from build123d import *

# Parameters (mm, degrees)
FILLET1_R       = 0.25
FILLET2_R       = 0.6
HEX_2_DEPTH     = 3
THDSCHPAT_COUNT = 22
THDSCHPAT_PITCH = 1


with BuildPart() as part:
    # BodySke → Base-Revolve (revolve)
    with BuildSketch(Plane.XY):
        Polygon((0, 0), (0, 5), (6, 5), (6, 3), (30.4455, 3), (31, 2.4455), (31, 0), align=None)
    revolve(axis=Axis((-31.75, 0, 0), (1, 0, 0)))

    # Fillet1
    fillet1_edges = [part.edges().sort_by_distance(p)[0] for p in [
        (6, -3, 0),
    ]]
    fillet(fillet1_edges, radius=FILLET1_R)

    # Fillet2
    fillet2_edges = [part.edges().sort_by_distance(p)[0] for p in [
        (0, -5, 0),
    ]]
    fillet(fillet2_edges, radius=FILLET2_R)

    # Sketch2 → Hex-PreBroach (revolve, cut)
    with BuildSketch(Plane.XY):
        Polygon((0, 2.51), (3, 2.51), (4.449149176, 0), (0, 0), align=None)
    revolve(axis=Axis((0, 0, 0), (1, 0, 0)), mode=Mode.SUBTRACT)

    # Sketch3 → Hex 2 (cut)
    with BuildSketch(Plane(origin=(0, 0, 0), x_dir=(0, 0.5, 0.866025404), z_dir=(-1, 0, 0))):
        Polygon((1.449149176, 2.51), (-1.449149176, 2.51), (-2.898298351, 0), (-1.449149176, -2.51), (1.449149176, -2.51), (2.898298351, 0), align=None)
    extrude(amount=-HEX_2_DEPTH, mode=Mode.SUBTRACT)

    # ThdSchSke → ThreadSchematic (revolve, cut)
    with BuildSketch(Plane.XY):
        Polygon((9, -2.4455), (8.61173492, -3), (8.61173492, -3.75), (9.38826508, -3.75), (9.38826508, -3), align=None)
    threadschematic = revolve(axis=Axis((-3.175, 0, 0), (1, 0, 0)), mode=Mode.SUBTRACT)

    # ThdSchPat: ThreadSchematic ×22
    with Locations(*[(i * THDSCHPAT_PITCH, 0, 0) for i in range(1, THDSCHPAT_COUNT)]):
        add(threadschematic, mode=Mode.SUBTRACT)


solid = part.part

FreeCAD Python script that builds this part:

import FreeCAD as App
import Part
import Sketcher

V = App.Vector
Q = App.Units.Quantity


def edges_at(feature, points):
    """Names of the edges that pass closest to the given points."""
    edges = feature.Shape.Edges
    near = lambda p: min(range(len(edges)), key=lambda i: edges[i].distToShape(Part.Vertex(*p))[0])
    return sorted({f"Edge{near(p) + 1}" for p in points})

doc = App.newDocument("Part")
params = doc.addObject("Spreadsheet::Sheet", "Params")
for row, (alias, value) in enumerate([
    ("sketch1_width", "31 mm"),
    ("sketch1_width2", "6 mm"),
    ("sketch1_height", "5 mm"),
    ("sketch1_height2", "2 mm"),
    ("revolution_angle", "360 deg"),
    ("fillet_radius", "0.25 mm"),
    ("fillet2_radius", "0.6 mm"),
    ("sketch2_width", "3 mm"),
    ("sketch2_height", "2.51 mm"),
    ("groove_angle", "360 deg"),
    ("pocket1_length", "3 mm"),
    ("sketch4_height", "0.75 mm"),
    ("groove2_angle", "360 deg"),
    ("linearpattern_pitch", "1 mm"),
], start=1):
    params.set(f"A{row}", alias)
    params.set(f"B{row}", "=" + value)
    params.setAlias(f"B{row}", alias)

body = doc.addObject("PartDesign::Body", "Body")

sketch1 = body.newObject("Sketcher::SketchObject", "Sketch")
sketch1.AttachmentSupport = (doc.getObject("XY_Plane"), [""])
sketch1.MapMode = "FlatFace"
sketch1.addGeometry(Part.LineSegment(V(0, 5, 0), V(0, 0, 0)), False)
sketch1.addGeometry(Part.LineSegment(V(0, 0, 0), V(31, 0, 0)), False)
sketch1.addGeometry(Part.LineSegment(V(31, 0, 0), V(31, 2.4, 0)), False)
sketch1.addGeometry(Part.LineSegment(V(31, 2.4, 0), V(30.4, 3, 0)), False)
sketch1.addGeometry(Part.LineSegment(V(30.4, 3, 0), V(6, 3, 0)), False)
sketch1.addGeometry(Part.LineSegment(V(6, 3, 0), V(6, 5, 0)), False)
sketch1.addGeometry(Part.LineSegment(V(6, 5, 0), V(0, 5, 0)), False)
sketch1.addConstraint(Sketcher.Constraint("Coincident", 0, 2, 1, 1))
sketch1.addConstraint(Sketcher.Constraint("Coincident", 1, 2, 2, 1))
sketch1.addConstraint(Sketcher.Constraint("Coincident", 2, 2, 3, 1))
sketch1.addConstraint(Sketcher.Constraint("Coincident", 3, 2, 4, 1))
sketch1.addConstraint(Sketcher.Constraint("Coincident", 4, 2, 5, 1))
sketch1.addConstraint(Sketcher.Constraint("Coincident", 5, 2, 6, 1))
sketch1.addConstraint(Sketcher.Constraint("Coincident", 6, 2, 0, 1))
sketch1.addConstraint(Sketcher.Constraint("Vertical", 0))
sketch1.addConstraint(Sketcher.Constraint("Horizontal", 1))
sketch1.addConstraint(Sketcher.Constraint("Vertical", 2))
sketch1.addConstraint(Sketcher.Constraint("Horizontal", 4))
sketch1.addConstraint(Sketcher.Constraint("Vertical", 5))
sketch1.addConstraint(Sketcher.Constraint("Horizontal", 6))
sketch1.addConstraint(Sketcher.Constraint("Coincident", 0, 2, -1, 1))
sketch1.addConstraint(Sketcher.Constraint("DistanceX", 1, 1, 1, 2, 31.0))
sketch1.addConstraint(Sketcher.Constraint("DistanceX", 6, 2, 6, 1, 6.0))
sketch1.addConstraint(Sketcher.Constraint("DistanceY", 0, 2, 0, 1, 5.0))
sketch1.addConstraint(Sketcher.Constraint("DistanceY", 5, 1, 5, 2, 2.0))
sketch1.addConstraint(Sketcher.Constraint("Angle", 3, Q("135 deg")))
sketch1.addConstraint(Sketcher.Constraint("DistanceX", 4, 2, 4, 1, 24.4455))
sketch1.setExpression("Constraints[14]", "Params.sketch1_width")
sketch1.setExpression("Constraints[15]", "Params.sketch1_width2")
sketch1.setExpression("Constraints[16]", "Params.sketch1_height")
sketch1.setExpression("Constraints[17]", "Params.sketch1_height2")
revolution = body.newObject("PartDesign::Revolution", "Revolution")
revolution.Profile = sketch1
revolution.ReferenceAxis = (sketch1, ["H_Axis"])
revolution.setExpression("Angle", "Params.revolution_angle")
doc.recompute()

fillet = body.newObject("PartDesign::Fillet", "Fillet")
fillet.Base = (revolution, edges_at(revolution, [(6, -3, 0)]))
fillet.setExpression("Radius", "Params.fillet_radius")
doc.recompute()

fillet2 = body.newObject("PartDesign::Fillet", "Fillet001")
fillet2.Base = (fillet, edges_at(fillet, [(0, -5, 0)]))
fillet2.setExpression("Radius", "Params.fillet2_radius")

sketch2 = body.newObject("Sketcher::SketchObject", "Sketch001")
sketch2.AttachmentSupport = (doc.getObject("XY_Plane"), [""])
sketch2.MapMode = "FlatFace"
sketch2.addGeometry(Part.LineSegment(V(3, 2.5, 0), V(0, 2.5, 0)), False)
sketch2.addGeometry(Part.LineSegment(V(0, 2.5, 0), V(0, 0, 0)), False)
sketch2.addGeometry(Part.LineSegment(V(0, 0, 0), V(4.4, 0, 0)), False)
sketch2.addGeometry(Part.LineSegment(V(4.4, 0, 0), V(3, 2.5, 0)), False)
sketch2.addConstraint(Sketcher.Constraint("Coincident", 0, 2, 1, 1))
sketch2.addConstraint(Sketcher.Constraint("Coincident", 1, 2, 2, 1))
sketch2.addConstraint(Sketcher.Constraint("Coincident", 2, 2, 3, 1))
sketch2.addConstraint(Sketcher.Constraint("Coincident", 3, 2, 0, 1))
sketch2.addConstraint(Sketcher.Constraint("Horizontal", 0))
sketch2.addConstraint(Sketcher.Constraint("Vertical", 1))
sketch2.addConstraint(Sketcher.Constraint("Horizontal", 2))
sketch2.addConstraint(Sketcher.Constraint("Coincident", 1, 2, -1, 1))
sketch2.addConstraint(Sketcher.Constraint("DistanceX", 0, 2, 0, 1, 3.0))
sketch2.addConstraint(Sketcher.Constraint("Angle", 3, Q("120 deg")))
sketch2.addConstraint(Sketcher.Constraint("DistanceY", 1, 2, 1, 1, 2.51))
sketch2.setExpression("Constraints[8]", "Params.sketch2_width")
sketch2.setExpression("Constraints[10]", "Params.sketch2_height")
groove = body.newObject("PartDesign::Groove", "Groove")
groove.Profile = sketch2
groove.ReferenceAxis = (sketch2, ["H_Axis"])
groove.setExpression("Angle", "Params.groove_angle")

sketch3 = body.newObject("Sketcher::SketchObject", "Sketch002")
sketch3.AttachmentSupport = (doc.getObject("YZ_Plane"), [""])
sketch3.MapMode = "FlatFace"
sketch3.addGeometry(Part.LineSegment(V(2.9, 0, 0), V(1.4, -2.5, 0)), False)
sketch3.addGeometry(Part.LineSegment(V(1.4, -2.5, 0), V(-1.4, -2.5, 0)), False)
sketch3.addGeometry(Part.LineSegment(V(-1.4, -2.5, 0), V(-2.9, 0, 0)), False)
sketch3.addGeometry(Part.LineSegment(V(-2.9, 0, 0), V(-1.4, 2.5, 0)), False)
sketch3.addGeometry(Part.LineSegment(V(-1.4, 2.5, 0), V(1.4, 2.5, 0)), False)
sketch3.addGeometry(Part.LineSegment(V(1.4, 2.5, 0), V(2.9, 0, 0)), False)
sketch3.addConstraint(Sketcher.Constraint("Coincident", 0, 2, 1, 1))
sketch3.addConstraint(Sketcher.Constraint("Coincident", 1, 2, 2, 1))
sketch3.addConstraint(Sketcher.Constraint("Coincident", 2, 2, 3, 1))
sketch3.addConstraint(Sketcher.Constraint("Coincident", 3, 2, 4, 1))
sketch3.addConstraint(Sketcher.Constraint("Coincident", 4, 2, 5, 1))
sketch3.addConstraint(Sketcher.Constraint("Coincident", 5, 2, 0, 1))
sketch3.addConstraint(Sketcher.Constraint("Horizontal", 1))
sketch3.addConstraint(Sketcher.Constraint("Horizontal", 4))
sketch3.addConstraint(Sketcher.Constraint("Symmetric", 0, 2, 3, 2, -1, 1))
sketch3.addConstraint(Sketcher.Constraint("Symmetric", 2, 2, 5, 2, -1, 1))
sketch3.addConstraint(Sketcher.Constraint("PointOnObject", 2, 2, -1))
sketch3.addConstraint(Sketcher.Constraint("Parallel", 2, 5))
sketch3.addConstraint(Sketcher.Constraint("Vertical", 1, 2, 3, 2))
sketch3.addConstraint(Sketcher.Constraint("Angle", 0, Q("-120 deg")))
sketch3.addConstraint(Sketcher.Constraint("DistanceY", 0, 2, -1, 1, 2.51))
sketch3.addConstraint(Sketcher.Constraint("DistanceX", 1, 2, 1, 1, 2.898298))
pocket1 = body.newObject("PartDesign::Pocket", "Pocket")
pocket1.Profile = sketch3
pocket1.setExpression("Length", "Params.pocket1_length")
pocket1.Reversed = True

sketch4 = body.newObject("Sketcher::SketchObject", "Sketch003")
sketch4.AttachmentSupport = (doc.getObject("XY_Plane"), [""])
sketch4.MapMode = "FlatFace"
sketch4.addGeometry(Part.LineSegment(V(9, -2.4, 0), V(8.6, -3, 0)), False)
sketch4.addGeometry(Part.LineSegment(V(8.6, -3, 0), V(8.6, -3.8, 0)), False)
sketch4.addGeometry(Part.LineSegment(V(8.6, -3.8, 0), V(9.4, -3.8, 0)), False)
sketch4.addGeometry(Part.LineSegment(V(9.4, -3.8, 0), V(9.4, -3, 0)), False)
sketch4.addGeometry(Part.LineSegment(V(9.4, -3, 0), V(9, -2.4, 0)), False)
sketch4.addConstraint(Sketcher.Constraint("Coincident", 0, 2, 1, 1))
sketch4.addConstraint(Sketcher.Constraint("Coincident", 1, 2, 2, 1))
sketch4.addConstraint(Sketcher.Constraint("Coincident", 2, 2, 3, 1))
sketch4.addConstraint(Sketcher.Constraint("Coincident", 3, 2, 4, 1))
sketch4.addConstraint(Sketcher.Constraint("Coincident", 4, 2, 0, 1))
sketch4.addConstraint(Sketcher.Constraint("Vertical", 1))
sketch4.addConstraint(Sketcher.Constraint("Horizontal", 2))
sketch4.addConstraint(Sketcher.Constraint("Vertical", 3))
sketch4.addConstraint(Sketcher.Constraint("Horizontal", 0, 2, 3, 2))
sketch4.addConstraint(Sketcher.Constraint("Equal", 0, 4))
sketch4.addConstraint(Sketcher.Constraint("Angle", 0, Q("-125 deg")))
sketch4.addConstraint(Sketcher.Constraint("DistanceY", 0, 2, -1, 1, 3.0))
sketch4.addConstraint(Sketcher.Constraint("DistanceX", -1, 1, 4, 2, 9.0))
sketch4.addConstraint(Sketcher.Constraint("DistanceY", 1, 2, 1, 1, 0.75))
sketch4.addConstraint(Sketcher.Constraint("DistanceX", 2, 1, 2, 2, 0.77653))
sketch4.setExpression("Constraints[13]", "Params.sketch4_height")
groove2 = body.newObject("PartDesign::Groove", "Groove001")
groove2.Profile = sketch4
groove2.ReferenceAxis = (sketch4, ["H_Axis"])
groove2.setExpression("Angle", "Params.groove2_angle")
doc.recompute()

linearpattern = body.newObject("PartDesign::LinearPattern", "LinearPattern")
linearpattern.Originals = [groove2]
linearpattern.Direction = (doc.getObject("X_Axis"), [""])
linearpattern.Mode = "offset"
linearpattern.setExpression("Offset", "Params.linearpattern_pitch")
linearpattern.Occurrences = 22
body.Tip = linearpattern

doc.recompute()
